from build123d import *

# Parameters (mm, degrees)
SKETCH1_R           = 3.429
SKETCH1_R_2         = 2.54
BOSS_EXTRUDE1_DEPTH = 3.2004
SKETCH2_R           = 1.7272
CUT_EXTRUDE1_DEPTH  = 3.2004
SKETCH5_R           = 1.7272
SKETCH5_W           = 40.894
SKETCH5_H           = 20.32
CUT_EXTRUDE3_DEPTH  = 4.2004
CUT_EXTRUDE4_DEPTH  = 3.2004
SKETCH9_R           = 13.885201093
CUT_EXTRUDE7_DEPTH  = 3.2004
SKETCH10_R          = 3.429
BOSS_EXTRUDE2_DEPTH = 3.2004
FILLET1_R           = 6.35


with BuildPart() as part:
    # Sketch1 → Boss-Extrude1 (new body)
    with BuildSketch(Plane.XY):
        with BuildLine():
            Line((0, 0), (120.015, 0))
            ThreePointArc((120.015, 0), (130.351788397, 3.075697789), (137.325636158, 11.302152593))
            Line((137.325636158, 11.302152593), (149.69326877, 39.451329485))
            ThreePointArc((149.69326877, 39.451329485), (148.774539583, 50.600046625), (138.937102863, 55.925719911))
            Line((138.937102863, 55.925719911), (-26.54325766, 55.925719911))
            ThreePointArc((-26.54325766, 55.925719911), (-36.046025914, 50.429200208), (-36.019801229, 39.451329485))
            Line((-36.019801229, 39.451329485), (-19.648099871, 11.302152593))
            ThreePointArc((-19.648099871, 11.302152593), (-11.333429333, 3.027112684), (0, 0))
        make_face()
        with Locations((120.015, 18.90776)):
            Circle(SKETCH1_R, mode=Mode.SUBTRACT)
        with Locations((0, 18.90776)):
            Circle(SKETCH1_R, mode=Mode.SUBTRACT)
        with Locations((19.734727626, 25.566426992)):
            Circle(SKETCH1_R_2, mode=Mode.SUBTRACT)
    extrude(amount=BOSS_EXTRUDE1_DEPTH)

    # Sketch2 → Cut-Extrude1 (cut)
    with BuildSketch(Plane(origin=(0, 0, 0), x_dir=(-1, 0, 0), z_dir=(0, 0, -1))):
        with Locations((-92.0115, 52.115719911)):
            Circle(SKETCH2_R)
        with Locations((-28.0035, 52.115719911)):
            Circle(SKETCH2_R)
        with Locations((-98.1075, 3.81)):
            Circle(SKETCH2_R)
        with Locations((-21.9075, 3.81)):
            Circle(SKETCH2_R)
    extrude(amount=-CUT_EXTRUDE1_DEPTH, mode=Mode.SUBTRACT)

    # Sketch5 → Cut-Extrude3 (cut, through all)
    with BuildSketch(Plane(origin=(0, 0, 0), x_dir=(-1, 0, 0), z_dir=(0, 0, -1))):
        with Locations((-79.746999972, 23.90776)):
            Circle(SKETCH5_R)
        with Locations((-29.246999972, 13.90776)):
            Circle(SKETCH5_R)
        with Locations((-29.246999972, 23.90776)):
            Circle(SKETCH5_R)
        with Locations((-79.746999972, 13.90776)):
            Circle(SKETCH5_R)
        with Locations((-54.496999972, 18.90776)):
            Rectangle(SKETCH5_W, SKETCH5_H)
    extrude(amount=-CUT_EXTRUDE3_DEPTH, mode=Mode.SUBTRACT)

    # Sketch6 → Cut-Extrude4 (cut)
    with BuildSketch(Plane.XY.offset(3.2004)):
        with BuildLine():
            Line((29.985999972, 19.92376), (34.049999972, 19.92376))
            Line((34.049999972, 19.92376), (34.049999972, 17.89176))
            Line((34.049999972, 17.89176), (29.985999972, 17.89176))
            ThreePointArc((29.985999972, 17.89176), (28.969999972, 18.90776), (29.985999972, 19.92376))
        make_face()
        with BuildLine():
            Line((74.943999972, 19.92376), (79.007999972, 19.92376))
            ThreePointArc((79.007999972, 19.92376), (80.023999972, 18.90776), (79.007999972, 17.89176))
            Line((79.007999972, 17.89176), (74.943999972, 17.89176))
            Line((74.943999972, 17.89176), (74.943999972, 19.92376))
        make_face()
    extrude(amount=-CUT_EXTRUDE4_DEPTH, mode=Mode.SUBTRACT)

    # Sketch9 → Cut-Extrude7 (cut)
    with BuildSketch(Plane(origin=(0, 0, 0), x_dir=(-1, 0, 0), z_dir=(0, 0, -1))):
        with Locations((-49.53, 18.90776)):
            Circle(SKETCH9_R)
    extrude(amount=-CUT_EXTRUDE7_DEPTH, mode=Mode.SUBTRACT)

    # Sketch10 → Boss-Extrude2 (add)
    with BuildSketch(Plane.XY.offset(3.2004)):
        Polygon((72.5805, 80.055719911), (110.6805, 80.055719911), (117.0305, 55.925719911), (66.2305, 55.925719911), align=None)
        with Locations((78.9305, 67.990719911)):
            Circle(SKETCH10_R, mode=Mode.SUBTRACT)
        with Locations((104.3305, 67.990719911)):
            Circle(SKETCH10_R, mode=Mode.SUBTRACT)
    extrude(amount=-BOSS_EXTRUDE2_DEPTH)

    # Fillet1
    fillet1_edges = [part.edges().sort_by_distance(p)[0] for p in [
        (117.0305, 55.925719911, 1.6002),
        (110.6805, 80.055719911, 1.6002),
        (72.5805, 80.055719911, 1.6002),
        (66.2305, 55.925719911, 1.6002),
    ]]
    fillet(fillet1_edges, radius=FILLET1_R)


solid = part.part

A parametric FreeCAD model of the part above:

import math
import FreeCAD as App
import Part
import Sketcher

V = App.Vector
Q = App.Units.Quantity


def edges_at(feature, points):
    """Names of the edges that pass closest to the given points."""
    edges = feature.Shape.Edges
    near = lambda p: min(range(len(edges)), key=lambda i: edges[i].distToShape(Part.Vertex(*p))[0])
    return sorted({f"Edge{near(p) + 1}" for p in points})

doc = App.newDocument("Part")
body = doc.addObject("PartDesign::Body", "Body")

sketch1 = doc.addObject("Sketcher::SketchObject", "Sketch")
body.addObject(sketch1)
sketch1.AttachmentSupport = (doc.XY_Plane, [""])
sketch1.MapMode = "FlatFace"
sketch1.addGeometry([
    Part.LineSegment(V(0, 0, 0), V(120, 0, 0)),
    Part.ArcOfCircle(Part.Circle(V(120, 18.9, 0), V(0, 0, 1), 18.9), math.radians(-90), math.radians(-24)),
    Part.LineSegment(V(137.3, 11.3, 0), V(149.7, 39.5, 0)),
    Part.ArcOfCircle(Part.Circle(V(138.9, 44.2, 0), V(0, 0, 1), 11.7), math.radians(-24), math.radians(90)),
    Part.LineSegment(V(138.9, 55.9, 0), V(-26.5, 55.9, 0)),
    Part.ArcOfCircle(Part.Circle(V(-26.5, 45, 0), V(0, 0, 1), 11), math.radians(90), math.radians(210)),
    Part.LineSegment(V(-36, 39.5, 0), V(-19.6, 11.3, 0)),
    Part.ArcOfCircle(Part.Circle(V(0, 22.7, 0), V(0, 0, 1), 22.7), math.radians(-150), math.radians(-90)),
    Part.Circle(V(0, 18.9, 0), V(0, 0, 1), 3.4),
    Part.Circle(V(120, 18.9, 0), V(0, 0, 1), 3.4),
    Part.Circle(V(19.7, 25.6, 0), V(0, 0, 1), 2.5),
], False)
sketch1.addConstraint([
    Sketcher.Constraint("Tangent", 0, 2, 1, 1),
    Sketcher.Constraint("Tangent", 1, 2, 2, 1),
    Sketcher.Constraint("Tangent", 2, 2, 3, 1),
    Sketcher.Constraint("Tangent", 3, 2, 4, 1),
    Sketcher.Constraint("Tangent", 4, 2, 5, 1),
    Sketcher.Constraint("Tangent", 5, 2, 6, 1),
    Sketcher.Constraint("Tangent", 6, 2, 7, 1),
    Sketcher.Constraint("Tangent", 7, 2, 0, 1),
    Sketcher.Constraint("Horizontal", 0),
    Sketcher.Constraint("Horizontal", 4),
    Sketcher.Constraint("Coincident", 7, 2, -1, 1),
    Sketcher.Constraint("Coincident", 9, 3, 1, 3),
    Sketcher.Constraint("Equal", 8, 9),
    Sketcher.Constraint("PointOnObject", 8, 3, -2),
    Sketcher.Constraint("Horizontal", 1, 3, 8, 3),
    Sketcher.Constraint("Horizontal", 2, 2, 5, 2),
    Sketcher.Constraint("Horizontal", 1, 2, 6, 2),
    Sketcher.Constraint("Diameter", 10, Q("0.2 in")),
    Sketcher.Constraint("Diameter", 8, Q("0.27 in")),
    Sketcher.Constraint("Radius", 1, Q("0.7444 in")),
    Sketcher.Constraint("DistanceX", 0, 1, 0, 2, Q("4.725 in")),
    Sketcher.Constraint("DistanceY", -1, 1, 3, 2, Q("2.2018 in")),
    Sketcher.Constraint("Radius", 3, 11.748557),
    Sketcher.Constraint("Radius", 5, 10.962786),
    Sketcher.Constraint("Radius", 7, 22.729585),
    Sketcher.Constraint("DistanceY", 7, 3, 10, 3, 2.836842),
    Sketcher.Constraint("DistanceX", 10, 3, 1, 2, 117.590909),
])
pad1 = doc.addObject("PartDesign::Pad", "Pad")
body.addObject(pad1)
pad1.Profile = sketch1
pad1.Length = Q("0.126 in")

sketch2 = doc.addObject("Sketcher::SketchObject", "Sketch001")
body.addObject(sketch2)
sketch2.AttachmentSupport = (doc.XY_Plane, [""])
sketch2.MapMode = "FlatFace"
sketch2.addGeometry([
    Part.Circle(V(92, 52.1, 0), V(0, 0, 1), 1.7),
    Part.Circle(V(28, 52.1, 0), V(0, 0, 1), 1.7),
    Part.Circle(V(98.1, 3.8, 0), V(0, 0, 1), 1.7),
    Part.Circle(V(21.9, 3.8, 0), V(0, 0, 1), 1.7),
], False)
sketch2.addConstraint([
    Sketcher.Constraint("Equal", 0, 1),
    Sketcher.Constraint("Equal", 1, 2),
    Sketcher.Constraint("Equal", 2, 3),
    Sketcher.Constraint("Horizontal", 0, 3, 1, 3),
    Sketcher.Constraint("Horizontal", 2, 3, 3, 3),
    Sketcher.Constraint("Diameter", 0, Q("0.136 in")),
    Sketcher.Constraint("DistanceX", 3, 3, 2, 3, Q("3 in")),
    Sketcher.Constraint("DistanceY", -1, 1, 2, 3, Q("0.15 in")),
    Sketcher.Constraint("DistanceX", 1, 3, 0, 3, Q("2.52 in")),
    Sketcher.Constraint("DistanceX", 0, 3, 2, 3, Q("0.24 in")),
    Sketcher.Constraint("DistanceX", -1, 1, 0, 3, Q("3.6225 in")),
    Sketcher.Constraint("DistanceY", -1, 1, 0, 3, Q("2.0518 in")),
])
pocket1 = doc.addObject("PartDesign::Pocket", "Pocket")
body.addObject(pocket1)
pocket1.Profile = sketch2
pocket1.Length = Q("0.126 in")
pocket1.Reversed = True

sketch3 = doc.addObject("Sketcher::SketchObject", "Sketch002")
body.addObject(sketch3)
sketch3.AttachmentSupport = (doc.XY_Plane, [""])
sketch3.MapMode = "FlatFace"
sketch3.addGeometry([
    Part.Circle(V(79.7, 23.9, 0), V(0, 0, 1), 1.7),
    Part.Circle(V(29.2, 13.9, 0), V(0, 0, 1), 1.7),
    Part.Circle(V(29.2, 23.9, 0), V(0, 0, 1), 1.7),
    Part.Circle(V(79.7, 13.9, 0), V(0, 0, 1), 1.7),
    Part.LineSegment(V(74.9, 29.1, 0), V(74.9, 8.7, 0)),
    Part.LineSegment(V(74.9, 8.7, 0), V(34, 8.7, 0)),
    Part.LineSegment(V(34, 8.7, 0), V(34, 29.1, 0)),
    Part.LineSegment(V(34, 29.1, 0), V(74.9, 29.1, 0)),
], False)
sketch3.addConstraint([
    Sketcher.Constraint("Coincident", 4, 2, 5, 1),
    Sketcher.Constraint("Coincident", 5, 2, 6, 1),
    Sketcher.Constraint("Coincident", 6, 2, 7, 1),
    Sketcher.Constraint("Coincident", 7, 2, 4, 1),
    Sketcher.Constraint("Vertical", 4),
    Sketcher.Constraint("Horizontal", 5),
    Sketcher.Constraint("Vertical", 6),
    Sketcher.Constraint("Horizontal", 7),
    Sketcher.Constraint("Equal", 0, 1),
    Sketcher.Constraint("Equal", 1, 2),
    Sketcher.Constraint("Equal", 2, 3),
    Sketcher.Constraint("Horizontal", 0, 3, 2, 3),
    Sketcher.Constraint("Horizontal", 1, 3, 3, 3),
    Sketcher.Constraint("Vertical", 1, 3, 2, 3),
    Sketcher.Constraint("Vertical", 0, 3, 3, 3),
    Sketcher.Constraint("Diameter", 0, Q("0.136 in")),
    Sketcher.Constraint("DistanceY", 4, 2, 4, 1, Q("0.8 in")),
    Sketcher.Constraint("DistanceX", 5, 2, 5, 1, Q("1.61 in")),
    Sketcher.Constraint("DistanceY", -1, 1, 4, 2, Q("0.3444 in")),
    Sketcher.Constraint("DistanceX", -1, 1, 0, 3, 79.747),
    Sketcher.Constraint("DistanceX", -1, 1, 1, 3, 29.247),
    Sketcher.Constraint("DistanceX", -1, 1, 4, 2, 74.944),
    Sketcher.Constraint("DistanceY", 1, 3, 0, 3, 10.0),
    Sketcher.Constraint("DistanceY", 4, 2, 3, 3, 5.16),
])
pocket2 = doc.addObject("PartDesign::Pocket", "Pocket001")
body.addObject(pocket2)
pocket2.Profile = sketch3
pocket2.Type = "ThroughAll"
pocket2.Reversed = True

sketch4 = doc.addObject("Sketcher::SketchObject", "Sketch003")
body.addObject(sketch4)
sketch4.AttachmentSupport = (doc.XY_Plane, [""])
sketch4.MapMode = "FlatFace"
sketch4.AttachmentOffset = App.Placement(V(0, 0, 0.126 * 25.4), App.Rotation())
sketch4.addGeometry([
    Part.LineSegment(V(34, 19.9, 0), V(30, 19.9, 0)),
    Part.ArcOfCircle(Part.Circle(V(30, 18.9, 0), V(0, 0, 1), 1), math.radians(90), math.radians(270)),
    Part.LineSegment(V(30, 17.9, 0), V(34, 17.9, 0)),
    Part.LineSegment(V(34, 17.9, 0), V(34, 19.9, 0)),
    Part.LineSegment(V(79, 19.9, 0), V(74.9, 19.9, 0)),
    Part.LineSegment(V(74.9, 19.9, 0), V(74.9, 17.9, 0)),
    Part.LineSegment(V(74.9, 17.9, 0), V(79, 17.9, 0)),
    Part.ArcOfCircle(Part.Circle(V(79, 18.9, 0), V(0, 0, 1), 1), math.radians(-90), math.radians(90)),
], False)
sketch4.addConstraint([
    Sketcher.Constraint("Tangent", 0, 2, 1, 1),
    Sketcher.Constraint("Tangent", 1, 2, 2, 1),
    Sketcher.Constraint("Coincident", 2, 2, 3, 1),
    Sketcher.Constraint("Coincident", 3, 2, 0, 1),
    Sketcher.Constraint("Coincident", 4, 2, 5, 1),
    Sketcher.Constraint("Coincident", 5, 2, 6, 1),
    Sketcher.Constraint("Tangent", 6, 2, 7, 1),
    Sketcher.Constraint("Tangent", 7, 2, 4, 1),
    Sketcher.Constraint("Horizontal", 0),
    Sketcher.Constraint("Horizontal", 2),
    Sketcher.Constraint("Vertical", 3),
    Sketcher.Constraint("Horizontal", 4),
    Sketcher.Constraint("Vertical", 5),
    Sketcher.Constraint("Horizontal", 6),
    Sketcher.Constraint("Equal", 1, 7),
    Sketcher.Constraint("Horizontal", 1, 3, 7, 3),
    Sketcher.Constraint("Equal", 2, 4),
    Sketcher.Constraint("Radius", 1, Q("0.04 in")),
    Sketcher.Constraint("DistanceX", 0, 2, 0, 1, Q("0.16 in")),
    Sketcher.Constraint("DistanceX", 1, 3, 7, 3, Q("1.93 in")),
    Sketcher.Constraint("DistanceY", -1, 1, 1, 3, Q("0.7444 in")),
    Sketcher.Constraint("DistanceX", -1, 1, 1, 3, 29.986),
])
pocket3 = doc.addObject("PartDesign::Pocket", "Pocket002")
body.addObject(pocket3)
pocket3.Profile = sketch4
pocket3.Length = Q("0.126 in")

sketch5 = doc.addObject("Sketcher::SketchObject", "Sketch004")
body.addObject(sketch5)
sketch5.AttachmentSupport = (doc.XY_Plane, [""])
sketch5.MapMode = "FlatFace"
sketch5.addGeometry(Part.Circle(V(50, 19, 0), V(0, 0, 1), 14), False)
sketch5.addConstraint([
    Sketcher.Constraint("DistanceX", -1, 1, 0, 3, Q("1.95 in")),
    Sketcher.Constraint("Diameter", 0, 27.770402),
    Sketcher.Constraint("DistanceY", -1, 1, 0, 3, Q("0.7444 in")),
])
pocket4 = doc.addObject("PartDesign::Pocket", "Pocket003")
body.addObject(pocket4)
pocket4.Profile = sketch5
pocket4.Length = Q("0.126 in")
pocket4.Reversed = True

sketch6 = doc.addObject("Sketcher::SketchObject", "Sketch005")
body.addObject(sketch6)
sketch6.AttachmentSupport = (doc.XY_Plane, [""])
sketch6.MapMode = "FlatFace"
sketch6.AttachmentOffset = App.Placement(V(0, 0, 0.126 * 25.4), App.Rotation())
sketch6.addGeometry([
    Part.LineSegment(V(110.7, 80.1, 0), V(72.6, 80.1, 0)),
    Part.LineSegment(V(72.6, 80.1, 0), V(66.2, 55.9, 0)),
    Part.LineSegment(V(66.2, 55.9, 0), V(117, 55.9, 0)),
    Part.LineSegment(V(117, 55.9, 0), V(110.7, 80.1, 0)),
    Part.Circle(V(104.3, 68, 0), V(0, 0, 1), 3.4),
    Part.Circle(V(78.9, 68, 0), V(0, 0, 1), 3.4),
], False)
sketch6.addConstraint([
    Sketcher.Constraint("Coincident", 0, 2, 1, 1),
    Sketcher.Constraint("Coincident", 1, 2, 2, 1),
    Sketcher.Constraint("Coincident", 2, 2, 3, 1),
    Sketcher.Constraint("Coincident", 3, 2, 0, 1),
    Sketcher.Constraint("Horizontal", 0),
    Sketcher.Constraint("Horizontal", 2),
    Sketcher.Constraint("Equal", 4, 5),
    Sketcher.Constraint("Horizontal", 4, 3, 5, 3),
    Sketcher.Constraint("Equal", 1, 3),
    Sketcher.Constraint("Diameter", 4, Q("0.27 in")),
    Sketcher.Constraint("DistanceX", 2, 1, 2, 2, Q("2 in")),
    Sketcher.Constraint("DistanceX", 0, 2, 0, 1, Q("1.5 in")),
    Sketcher.Constraint("DistanceX", 5, 3, 4, 3, Q("1 in")),
    Sketcher.Constraint("DistanceX", 1, 2, 5, 3, Q("0.5 in")),
    Sketcher.Constraint("DistanceY", 1, 2, 0, 2, Q("0.95 in")),
    Sketcher.Constraint("DistanceY", 5, 3, 0, 2, Q("0.475 in")),
    Sketcher.Constraint("DistanceX", -1, 1, 4, 3, Q("4.1075 in")),
    Sketcher.Constraint("DistanceY", -1, 1, 4, 3, Q("2.6768 in")),
])
pad2 = doc.addObject("PartDesign::Pad", "Pad001")
body.addObject(pad2)
pad2.Profile = sketch6
pad2.Length = Q("0.126 in")
pad2.Reversed = True
doc.recompute()

fillet = doc.addObject("PartDesign::Fillet", "Fillet")
body.addObject(fillet)
fillet.Base = (pad2, edges_at(pad2, [
    (117.031, 55.926, 1.6),
    (110.68, 80.056, 1.6),
    (72.581, 80.056, 1.6),
    (66.231, 55.926, 1.6),
]))
fillet.Radius = Q("0.25 in")

doc.recompute()
